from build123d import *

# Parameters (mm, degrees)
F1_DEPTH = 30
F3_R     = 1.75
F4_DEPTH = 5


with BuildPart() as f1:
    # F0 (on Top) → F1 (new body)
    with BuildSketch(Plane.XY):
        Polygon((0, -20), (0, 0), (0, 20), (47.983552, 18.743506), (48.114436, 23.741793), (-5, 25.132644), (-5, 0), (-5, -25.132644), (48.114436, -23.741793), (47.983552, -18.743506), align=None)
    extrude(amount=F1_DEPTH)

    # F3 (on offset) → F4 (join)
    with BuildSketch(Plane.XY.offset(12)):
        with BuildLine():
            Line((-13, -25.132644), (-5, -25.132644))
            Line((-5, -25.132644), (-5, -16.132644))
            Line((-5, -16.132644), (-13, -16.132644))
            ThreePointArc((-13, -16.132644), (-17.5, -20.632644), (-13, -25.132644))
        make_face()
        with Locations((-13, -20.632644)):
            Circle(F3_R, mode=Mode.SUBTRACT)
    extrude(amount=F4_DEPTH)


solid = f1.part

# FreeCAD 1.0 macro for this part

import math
import FreeCAD as App
import Part
import Sketcher
Q = App.Units.Quantity


def add_polygon(sketch, points):
    """Adds a closed chain of lines whose ends are joined by coincident constraints."""
    first, n = sketch.GeometryCount, len(points)
    for a, b in zip(points, points[1:] + points[:1]):
        sketch.addGeometry(Part.LineSegment(App.Vector(*a, 0), App.Vector(*b, 0)), False)
    for i in range(n):
        sketch.addConstraint(Sketcher.Constraint("Coincident", first + i, 2, first + (i + 1) % n, 1))

doc = App.newDocument("Part")
body = doc.addObject("PartDesign::Body", "Body")

# Sketch on XY plane
sketch1 = body.newObject("Sketcher::SketchObject", "Sketch")
sketch1.AttachmentSupport = (doc.getObject("XY_Plane"), [""])
sketch1.MapMode = "FlatFace"
add_polygon(sketch1, [(0, -20), (0, 20), (47.983552, 18.743506), (48.114436, 23.741793), (-5, 25.132644), (-5, -25.132644), (48.114436, -23.741793), (47.983552, -18.743506)])  # lines 0-7
sketch1.addConstraint(Sketcher.Constraint("Vertical", 0))
sketch1.addConstraint(Sketcher.Constraint("Vertical", 4))
sketch1.addConstraint(Sketcher.Constraint("Symmetric", 0, 2, 7, 2, -1, 1))
sketch1.addConstraint(Sketcher.Constraint("Symmetric", 2, 2, 5, 2, -1))
sketch1.addConstraint(Sketcher.Constraint("Symmetric", 1, 2, 6, 2, -1))
sketch1.addConstraint(Sketcher.Constraint("Perpendicular", 1, 2))
sketch1.addConstraint(Sketcher.Constraint("Perpendicular", 2, 3))
sketch1.addConstraint(Sketcher.Constraint("Perpendicular", 5, 6))
sketch1.addConstraint(Sketcher.Constraint("DistanceY", 0, 1, 0, 2, 40.0))
sketch1.addConstraint(Sketcher.Constraint("Distance", 1, 48.0))
sketch1.addConstraint(Sketcher.Constraint("Distance", 2, 5.0))
sketch1.addConstraint(Sketcher.Constraint("DistanceX", 3, 2, -1, 1, 5.0))
sketch1.addConstraint(Sketcher.Constraint("Angle", 1, Q("-1.500001 deg")))
pad1 = body.newObject("PartDesign::Pad", "Pad")
pad1.Profile = sketch1
pad1.Length = 30

# Sketch on XY plane
sketch2 = body.newObject("Sketcher::SketchObject", "Sketch001")
sketch2.AttachmentSupport = (doc.getObject("XY_Plane"), [""])
sketch2.MapMode = "FlatFace"
sketch2.AttachmentOffset = App.Placement(App.Vector(0, 0, 12), App.Rotation())
sketch2.addGeometry(Part.LineSegment(App.Vector(-13, -25.132644, 0), App.Vector(-5, -25.132644, 0)), False)
sketch2.addGeometry(Part.LineSegment(App.Vector(-5, -25.132644, 0), App.Vector(-5, -16.132644, 0)), False)
sketch2.addGeometry(Part.LineSegment(App.Vector(-5, -16.132644, 0), App.Vector(-13, -16.132644, 0)), False)
sketch2.addGeometry(Part.ArcOfCircle(Part.Circle(App.Vector(-13, -20.632644, 0), App.Vector(0, 0, 1), 4.5), math.radians(90), math.radians(270)), False)
sketch2.addGeometry(Part.Circle(App.Vector(-13, -20.632644, 0), App.Vector(0, 0, 1), 1.75), False)
sketch2.addConstraint(Sketcher.Constraint("Coincident", 0, 2, 1, 1))
sketch2.addConstraint(Sketcher.Constraint("Coincident", 1, 2, 2, 1))
sketch2.addConstraint(Sketcher.Constraint("Tangent", 2, 2, 3, 1))
sketch2.addConstraint(Sketcher.Constraint("Tangent", 3, 2, 0, 1))
sketch2.addConstraint(Sketcher.Constraint("Horizontal", 0))
sketch2.addConstraint(Sketcher.Constraint("Vertical", 1))
sketch2.addConstraint(Sketcher.Constraint("Horizontal", 2))
sketch2.addConstraint(Sketcher.Constraint("Coincident", 4, 3, 3, 3))
sketch2.addConstraint(Sketcher.Constraint("Diameter", 4, 3.5))
sketch2.addConstraint(Sketcher.Constraint("Radius", 3, 4.5))
sketch2.addConstraint(Sketcher.Constraint("DistanceX", 0, 1, 0, 2, 8.0))
sketch2.addConstraint(Sketcher.Constraint("DistanceX", 3, 3, -1, 1, 13.0))
sketch2.addConstraint(Sketcher.Constraint("DistanceY", 3, 3, -1, 1, 20.632644))
pad2 = body.newObject("PartDesign::Pad", "Pad001")
pad2.Profile = sketch2
pad2.Length = 5

doc.recompute()
